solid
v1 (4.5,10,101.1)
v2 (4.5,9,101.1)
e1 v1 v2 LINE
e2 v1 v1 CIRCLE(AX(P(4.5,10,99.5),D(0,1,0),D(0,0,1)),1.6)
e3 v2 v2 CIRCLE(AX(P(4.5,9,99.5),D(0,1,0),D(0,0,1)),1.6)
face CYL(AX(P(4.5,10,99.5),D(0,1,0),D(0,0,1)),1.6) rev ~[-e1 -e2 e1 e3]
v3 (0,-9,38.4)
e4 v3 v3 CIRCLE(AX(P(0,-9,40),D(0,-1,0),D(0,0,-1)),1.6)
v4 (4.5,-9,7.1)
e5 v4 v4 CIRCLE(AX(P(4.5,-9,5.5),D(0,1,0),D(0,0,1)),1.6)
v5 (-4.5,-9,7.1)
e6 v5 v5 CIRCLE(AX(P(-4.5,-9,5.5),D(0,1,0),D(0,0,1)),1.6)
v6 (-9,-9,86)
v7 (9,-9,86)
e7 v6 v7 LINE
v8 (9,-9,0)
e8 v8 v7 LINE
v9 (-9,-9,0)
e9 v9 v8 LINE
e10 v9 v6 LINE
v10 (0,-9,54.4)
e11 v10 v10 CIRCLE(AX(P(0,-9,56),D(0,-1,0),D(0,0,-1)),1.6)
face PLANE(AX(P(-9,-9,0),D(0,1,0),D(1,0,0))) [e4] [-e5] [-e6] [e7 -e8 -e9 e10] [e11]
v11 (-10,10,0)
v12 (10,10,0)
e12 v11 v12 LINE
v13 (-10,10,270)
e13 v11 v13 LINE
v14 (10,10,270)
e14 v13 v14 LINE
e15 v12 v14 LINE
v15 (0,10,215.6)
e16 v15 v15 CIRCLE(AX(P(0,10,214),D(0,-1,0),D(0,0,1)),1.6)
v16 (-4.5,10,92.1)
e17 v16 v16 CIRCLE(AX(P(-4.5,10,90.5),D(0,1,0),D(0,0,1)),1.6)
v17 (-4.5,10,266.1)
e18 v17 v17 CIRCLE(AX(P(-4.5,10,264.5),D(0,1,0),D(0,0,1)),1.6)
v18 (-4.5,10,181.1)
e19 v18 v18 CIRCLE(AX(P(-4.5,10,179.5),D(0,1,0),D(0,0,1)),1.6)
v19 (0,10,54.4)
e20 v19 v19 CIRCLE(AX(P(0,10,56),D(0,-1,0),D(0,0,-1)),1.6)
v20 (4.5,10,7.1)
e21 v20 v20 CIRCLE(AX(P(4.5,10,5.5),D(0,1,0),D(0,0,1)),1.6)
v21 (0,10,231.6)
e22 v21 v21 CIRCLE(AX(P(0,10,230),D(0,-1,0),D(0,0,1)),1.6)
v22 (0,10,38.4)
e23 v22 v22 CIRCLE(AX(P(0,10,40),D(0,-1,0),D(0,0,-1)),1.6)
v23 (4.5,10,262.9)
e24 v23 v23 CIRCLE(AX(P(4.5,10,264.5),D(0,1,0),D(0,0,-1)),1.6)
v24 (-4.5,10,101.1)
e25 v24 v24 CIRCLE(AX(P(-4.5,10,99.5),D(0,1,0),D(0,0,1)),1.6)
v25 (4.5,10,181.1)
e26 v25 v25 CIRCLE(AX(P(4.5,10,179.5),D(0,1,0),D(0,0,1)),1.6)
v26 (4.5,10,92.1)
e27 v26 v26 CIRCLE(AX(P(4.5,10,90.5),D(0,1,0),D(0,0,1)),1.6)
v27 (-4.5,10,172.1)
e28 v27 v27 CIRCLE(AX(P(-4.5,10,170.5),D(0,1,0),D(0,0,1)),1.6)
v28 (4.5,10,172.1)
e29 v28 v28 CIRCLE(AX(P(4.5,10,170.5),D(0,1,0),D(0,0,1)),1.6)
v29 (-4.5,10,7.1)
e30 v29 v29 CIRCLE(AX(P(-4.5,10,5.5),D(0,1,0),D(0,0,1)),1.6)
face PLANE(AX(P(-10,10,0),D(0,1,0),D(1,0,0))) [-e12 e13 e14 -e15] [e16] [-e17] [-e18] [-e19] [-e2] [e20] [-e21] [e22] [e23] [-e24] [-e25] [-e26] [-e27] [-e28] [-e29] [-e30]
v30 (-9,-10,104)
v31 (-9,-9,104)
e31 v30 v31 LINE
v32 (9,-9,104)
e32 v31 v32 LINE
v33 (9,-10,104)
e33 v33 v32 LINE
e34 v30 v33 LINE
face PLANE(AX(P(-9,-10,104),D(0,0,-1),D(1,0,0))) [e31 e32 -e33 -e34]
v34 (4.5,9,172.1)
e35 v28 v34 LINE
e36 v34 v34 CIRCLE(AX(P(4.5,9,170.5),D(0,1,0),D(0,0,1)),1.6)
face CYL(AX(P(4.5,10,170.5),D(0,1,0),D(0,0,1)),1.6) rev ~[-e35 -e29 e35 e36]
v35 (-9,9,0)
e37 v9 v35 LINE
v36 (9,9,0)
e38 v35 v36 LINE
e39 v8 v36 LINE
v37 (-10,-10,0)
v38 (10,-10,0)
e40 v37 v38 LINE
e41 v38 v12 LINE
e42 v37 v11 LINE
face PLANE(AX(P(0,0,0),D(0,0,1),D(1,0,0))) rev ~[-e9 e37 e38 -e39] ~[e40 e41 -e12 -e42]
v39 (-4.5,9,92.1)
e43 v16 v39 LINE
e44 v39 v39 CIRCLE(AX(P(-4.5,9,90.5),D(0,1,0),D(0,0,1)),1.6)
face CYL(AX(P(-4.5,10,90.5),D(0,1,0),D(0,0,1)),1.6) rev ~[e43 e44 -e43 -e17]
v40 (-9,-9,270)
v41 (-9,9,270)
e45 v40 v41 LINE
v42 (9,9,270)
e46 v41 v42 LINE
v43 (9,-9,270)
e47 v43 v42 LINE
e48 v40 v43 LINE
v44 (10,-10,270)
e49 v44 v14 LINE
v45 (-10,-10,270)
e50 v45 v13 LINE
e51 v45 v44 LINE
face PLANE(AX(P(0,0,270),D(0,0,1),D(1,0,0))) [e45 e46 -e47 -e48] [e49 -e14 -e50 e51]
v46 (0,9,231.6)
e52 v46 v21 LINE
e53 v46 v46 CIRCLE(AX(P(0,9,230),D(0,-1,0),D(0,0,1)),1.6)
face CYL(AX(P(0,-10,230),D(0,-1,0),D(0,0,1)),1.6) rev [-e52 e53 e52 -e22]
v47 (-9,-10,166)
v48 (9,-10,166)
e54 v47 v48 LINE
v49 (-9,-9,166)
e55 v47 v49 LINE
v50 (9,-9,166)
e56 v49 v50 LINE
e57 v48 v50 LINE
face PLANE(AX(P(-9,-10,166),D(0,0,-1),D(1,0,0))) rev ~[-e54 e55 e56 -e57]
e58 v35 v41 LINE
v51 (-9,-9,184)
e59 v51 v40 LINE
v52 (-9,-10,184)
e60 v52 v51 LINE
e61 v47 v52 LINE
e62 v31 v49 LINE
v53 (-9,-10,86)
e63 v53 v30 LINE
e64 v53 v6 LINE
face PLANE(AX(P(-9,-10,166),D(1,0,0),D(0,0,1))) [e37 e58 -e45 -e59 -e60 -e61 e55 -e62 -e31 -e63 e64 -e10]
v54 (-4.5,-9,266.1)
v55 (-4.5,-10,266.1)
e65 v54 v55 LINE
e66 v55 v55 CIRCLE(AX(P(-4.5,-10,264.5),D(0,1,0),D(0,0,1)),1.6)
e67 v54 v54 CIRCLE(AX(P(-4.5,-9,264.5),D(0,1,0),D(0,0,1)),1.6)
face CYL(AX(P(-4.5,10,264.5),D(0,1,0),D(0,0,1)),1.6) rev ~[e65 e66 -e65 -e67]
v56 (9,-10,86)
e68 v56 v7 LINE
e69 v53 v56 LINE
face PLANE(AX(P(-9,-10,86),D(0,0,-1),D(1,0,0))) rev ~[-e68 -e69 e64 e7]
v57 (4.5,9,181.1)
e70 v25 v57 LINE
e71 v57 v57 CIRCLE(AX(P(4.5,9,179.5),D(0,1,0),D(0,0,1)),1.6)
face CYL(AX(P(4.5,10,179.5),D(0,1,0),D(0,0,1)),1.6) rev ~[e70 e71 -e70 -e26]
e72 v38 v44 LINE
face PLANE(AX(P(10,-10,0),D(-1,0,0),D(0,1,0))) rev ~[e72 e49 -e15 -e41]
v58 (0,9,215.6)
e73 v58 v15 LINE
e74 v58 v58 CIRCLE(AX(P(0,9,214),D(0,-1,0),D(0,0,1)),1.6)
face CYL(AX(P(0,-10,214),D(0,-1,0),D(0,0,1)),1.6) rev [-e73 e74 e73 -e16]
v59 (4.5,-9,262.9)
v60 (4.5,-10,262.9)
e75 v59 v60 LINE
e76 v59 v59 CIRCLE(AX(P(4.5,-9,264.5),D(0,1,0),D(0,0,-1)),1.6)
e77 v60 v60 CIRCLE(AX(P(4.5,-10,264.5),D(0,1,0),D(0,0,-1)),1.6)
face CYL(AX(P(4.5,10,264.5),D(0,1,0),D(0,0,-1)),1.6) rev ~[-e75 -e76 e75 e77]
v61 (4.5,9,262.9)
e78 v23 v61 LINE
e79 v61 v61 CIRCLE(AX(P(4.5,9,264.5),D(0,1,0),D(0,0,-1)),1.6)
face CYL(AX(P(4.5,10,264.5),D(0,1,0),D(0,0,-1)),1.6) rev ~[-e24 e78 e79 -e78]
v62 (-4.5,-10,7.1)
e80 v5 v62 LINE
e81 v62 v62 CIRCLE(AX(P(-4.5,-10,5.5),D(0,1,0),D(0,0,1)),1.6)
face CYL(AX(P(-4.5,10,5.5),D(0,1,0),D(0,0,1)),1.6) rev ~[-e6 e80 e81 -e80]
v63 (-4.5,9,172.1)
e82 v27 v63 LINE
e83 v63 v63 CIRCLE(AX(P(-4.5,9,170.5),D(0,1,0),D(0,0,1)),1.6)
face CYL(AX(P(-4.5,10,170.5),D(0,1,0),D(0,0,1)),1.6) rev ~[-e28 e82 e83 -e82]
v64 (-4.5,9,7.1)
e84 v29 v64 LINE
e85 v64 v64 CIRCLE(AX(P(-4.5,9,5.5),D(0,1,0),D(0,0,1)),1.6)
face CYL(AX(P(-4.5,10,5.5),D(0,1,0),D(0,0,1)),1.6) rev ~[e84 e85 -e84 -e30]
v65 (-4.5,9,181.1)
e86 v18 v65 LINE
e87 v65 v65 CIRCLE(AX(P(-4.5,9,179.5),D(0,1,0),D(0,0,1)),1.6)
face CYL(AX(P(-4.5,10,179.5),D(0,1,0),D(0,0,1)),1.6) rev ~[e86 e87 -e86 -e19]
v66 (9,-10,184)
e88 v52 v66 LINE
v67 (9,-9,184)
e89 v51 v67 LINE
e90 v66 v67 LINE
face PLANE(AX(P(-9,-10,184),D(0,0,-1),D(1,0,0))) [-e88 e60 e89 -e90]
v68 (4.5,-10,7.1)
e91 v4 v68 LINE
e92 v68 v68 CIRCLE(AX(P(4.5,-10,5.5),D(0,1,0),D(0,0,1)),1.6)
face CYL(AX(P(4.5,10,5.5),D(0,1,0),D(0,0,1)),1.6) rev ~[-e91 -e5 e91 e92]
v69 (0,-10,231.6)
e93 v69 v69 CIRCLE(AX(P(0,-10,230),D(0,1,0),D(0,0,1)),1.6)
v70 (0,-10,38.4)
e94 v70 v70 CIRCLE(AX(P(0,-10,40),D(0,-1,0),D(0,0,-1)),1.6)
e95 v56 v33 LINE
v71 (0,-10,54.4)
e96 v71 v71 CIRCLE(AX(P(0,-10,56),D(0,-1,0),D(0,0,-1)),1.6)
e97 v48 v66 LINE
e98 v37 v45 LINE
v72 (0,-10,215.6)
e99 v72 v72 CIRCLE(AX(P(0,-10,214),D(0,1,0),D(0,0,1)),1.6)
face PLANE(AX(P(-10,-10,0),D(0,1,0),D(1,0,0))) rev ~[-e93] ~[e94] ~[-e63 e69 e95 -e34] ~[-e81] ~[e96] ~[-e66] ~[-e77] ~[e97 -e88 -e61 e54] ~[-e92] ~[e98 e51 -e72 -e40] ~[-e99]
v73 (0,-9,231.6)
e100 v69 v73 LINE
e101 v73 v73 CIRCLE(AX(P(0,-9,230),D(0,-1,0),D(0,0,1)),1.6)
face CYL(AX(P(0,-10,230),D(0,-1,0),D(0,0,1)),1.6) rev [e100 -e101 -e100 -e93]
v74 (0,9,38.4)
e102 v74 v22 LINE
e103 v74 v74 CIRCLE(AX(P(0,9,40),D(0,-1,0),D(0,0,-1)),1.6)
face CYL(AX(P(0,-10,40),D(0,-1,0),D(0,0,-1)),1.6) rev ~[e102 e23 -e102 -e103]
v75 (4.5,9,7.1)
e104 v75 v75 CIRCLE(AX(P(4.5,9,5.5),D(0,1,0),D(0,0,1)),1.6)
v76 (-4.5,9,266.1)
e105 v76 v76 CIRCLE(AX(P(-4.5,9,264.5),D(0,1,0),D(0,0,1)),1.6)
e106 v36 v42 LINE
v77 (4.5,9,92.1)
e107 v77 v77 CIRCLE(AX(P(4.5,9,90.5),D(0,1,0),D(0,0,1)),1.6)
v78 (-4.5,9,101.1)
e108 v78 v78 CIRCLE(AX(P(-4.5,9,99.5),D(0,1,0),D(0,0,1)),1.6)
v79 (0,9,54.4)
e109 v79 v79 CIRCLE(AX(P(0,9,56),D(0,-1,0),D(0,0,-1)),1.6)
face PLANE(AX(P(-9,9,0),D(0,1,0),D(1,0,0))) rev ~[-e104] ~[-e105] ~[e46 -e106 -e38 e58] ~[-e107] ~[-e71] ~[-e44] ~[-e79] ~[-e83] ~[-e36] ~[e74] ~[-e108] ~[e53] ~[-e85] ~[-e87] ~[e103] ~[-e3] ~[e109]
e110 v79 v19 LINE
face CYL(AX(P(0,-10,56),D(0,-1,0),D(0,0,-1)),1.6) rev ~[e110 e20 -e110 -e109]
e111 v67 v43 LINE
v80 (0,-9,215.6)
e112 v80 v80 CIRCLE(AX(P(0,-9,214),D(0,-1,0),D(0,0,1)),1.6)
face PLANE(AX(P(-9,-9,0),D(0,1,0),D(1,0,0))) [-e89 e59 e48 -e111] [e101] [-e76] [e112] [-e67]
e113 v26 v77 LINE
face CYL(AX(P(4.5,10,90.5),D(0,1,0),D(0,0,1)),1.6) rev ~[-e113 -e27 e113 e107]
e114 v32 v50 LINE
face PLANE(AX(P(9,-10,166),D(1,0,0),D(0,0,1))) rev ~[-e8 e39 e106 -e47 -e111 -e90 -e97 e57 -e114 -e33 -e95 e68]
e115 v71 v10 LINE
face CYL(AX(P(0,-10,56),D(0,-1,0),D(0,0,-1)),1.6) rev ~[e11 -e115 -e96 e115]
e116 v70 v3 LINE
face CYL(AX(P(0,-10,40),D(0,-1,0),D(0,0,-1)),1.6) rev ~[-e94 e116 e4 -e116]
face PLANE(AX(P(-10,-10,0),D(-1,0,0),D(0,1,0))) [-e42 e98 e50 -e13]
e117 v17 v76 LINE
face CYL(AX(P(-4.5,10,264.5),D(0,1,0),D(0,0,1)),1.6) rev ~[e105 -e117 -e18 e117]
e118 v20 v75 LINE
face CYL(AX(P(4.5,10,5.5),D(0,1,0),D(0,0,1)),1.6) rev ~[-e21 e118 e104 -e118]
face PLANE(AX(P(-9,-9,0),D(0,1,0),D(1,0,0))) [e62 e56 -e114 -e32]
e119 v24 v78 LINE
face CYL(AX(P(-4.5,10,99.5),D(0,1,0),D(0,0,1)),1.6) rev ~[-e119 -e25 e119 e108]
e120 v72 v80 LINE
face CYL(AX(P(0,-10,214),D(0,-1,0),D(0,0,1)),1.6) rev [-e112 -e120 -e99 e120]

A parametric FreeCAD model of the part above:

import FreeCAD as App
import Part
import Sketcher
from FreeCAD import Vector
Q = App.Units.Quantity

doc = App.newDocument("Part")
body = doc.addObject("PartDesign::Body", "Body")

# Sketch on XY plane
sketch1 = doc.addObject("Sketcher::SketchObject", "Sketch")
body.addObject(sketch1)
sketch1.AttachmentSupport = (doc.XY_Plane, [""])
sketch1.MapMode = "FlatFace"
sketch1.addGeometry([
    Part.LineSegment(Vector(-10, 10, 0), Vector(-10, -10, 0)),  # 0
    Part.LineSegment(Vector(-10, -10, 0), Vector(10, -10, 0)),  # 1
    Part.LineSegment(Vector(10, -10, 0), Vector(10, 10, 0)),  # 2
    Part.LineSegment(Vector(10, 10, 0), Vector(-10, 10, 0)),  # 3
    Part.LineSegment(Vector(9, -9, 0), Vector(-9, -9, 0)),  # 4
    Part.LineSegment(Vector(-9, -9, 0), Vector(-9, 9, 0)),  # 5
    Part.LineSegment(Vector(-9, 9, 0), Vector(9, 9, 0)),  # 6
    Part.LineSegment(Vector(9, 9, 0), Vector(9, -9, 0)),  # 7
], False)
sketch1.addConstraint([
    Sketcher.Constraint("Coincident", 0, 2, 1, 1),
    Sketcher.Constraint("Coincident", 1, 2, 2, 1),
    Sketcher.Constraint("Coincident", 2, 2, 3, 1),
    Sketcher.Constraint("Coincident", 3, 2, 0, 1),
    Sketcher.Constraint("Coincident", 4, 2, 5, 1),
    Sketcher.Constraint("Coincident", 5, 2, 6, 1),
    Sketcher.Constraint("Coincident", 6, 2, 7, 1),
    Sketcher.Constraint("Coincident", 7, 2, 4, 1),
    Sketcher.Constraint("Vertical", 0),
    Sketcher.Constraint("Horizontal", 1),
    Sketcher.Constraint("Vertical", 2),
    Sketcher.Constraint("Horizontal", 3),
    Sketcher.Constraint("Horizontal", 4),
    Sketcher.Constraint("Vertical", 5),
    Sketcher.Constraint("Horizontal", 6),
    Sketcher.Constraint("Vertical", 7),
    Sketcher.Constraint("Symmetric", 0, 2, 2, 2, -1, 1),
    Sketcher.Constraint("Symmetric", 4, 2, 6, 2, -1, 1),
    Sketcher.Constraint("Equal", 3, 0),
    Sketcher.Constraint("Equal", 6, 5),
    Sketcher.Constraint("DistanceX", 1, 1, 1, 2, Q("20 mm")),
    Sketcher.Constraint("DistanceX", 4, 2, 4, 1, Q("18 mm")),
])
pad1 = doc.addObject("PartDesign::Pad", "Pad")
body.addObject(pad1)
pad1.Profile = sketch1
pad1.Length = 270

# Sketch on XZ plane
sketch2 = doc.addObject("Sketcher::SketchObject", "Sketch001")
body.addObject(sketch2)
sketch2.AttachmentSupport = (doc.XZ_Plane, [""])
sketch2.MapMode = "FlatFace"
sketch2.AttachmentOffset = App.Placement(Vector(0, 0, -10), App.Rotation())
sketch2.addGeometry([
    Part.Circle(Vector(-4.5, 179.5, 0), Vector(0, 0, 1), 1.6),  # 0
    Part.Circle(Vector(4.5, 179.5, 0), Vector(0, 0, 1), 1.6),  # 1
    Part.Circle(Vector(4.5, 170.5, 0), Vector(0, 0, 1), 1.6),  # 2
    Part.Circle(Vector(-4.5, 170.5, 0), Vector(0, 0, 1), 1.6),  # 3
    Part.Circle(Vector(-4.5, 99.5, 0), Vector(0, 0, 1), 1.6),  # 4
    Part.Circle(Vector(4.5, 90.5, 0), Vector(0, 0, 1), 1.6),  # 5
    Part.Circle(Vector(4.5, 99.5, 0), Vector(0, 0, 1), 1.6),  # 6
    Part.Circle(Vector(-4.5, 90.5, 0), Vector(0, 0, 1), 1.6),  # 7
], False)
sketch2.addConstraint([
    Sketcher.Constraint("Equal", 0, 1),
    Sketcher.Constraint("Equal", 1, 2),
    Sketcher.Constraint("Equal", 2, 3),
    Sketcher.Constraint("Equal", 3, 4),
    Sketcher.Constraint("Equal", 4, 5),
    Sketcher.Constraint("Equal", 5, 6),
    Sketcher.Constraint("Equal", 6, 7),
    Sketcher.Constraint("Symmetric", 0, 3, 1, 3, -2),
    Sketcher.Constraint("Symmetric", 2, 3, 3, 3, -2),
    Sketcher.Constraint("Symmetric", 4, 3, 6, 3, -2),
    Sketcher.Constraint("Symmetric", 5, 3, 7, 3, -2),
    Sketcher.Constraint("Vertical", 1, 3, 2, 3),
    Sketcher.Constraint("Vertical", 3, 3, 4, 3),
    Sketcher.Constraint("Vertical", 2, 3, 5, 3),
    Sketcher.Constraint("Diameter", 0, Q("3.2 mm")),
    Sketcher.Constraint("DistanceX", 0, 3, 1, 3, Q("9 mm")),
    Sketcher.Constraint("DistanceY", 2, 3, 1, 3, Q("9 mm")),
    Sketcher.Constraint("DistanceY", 4, 3, 3, 3, Q("71 mm")),
    Sketcher.Constraint("DistanceY", 5, 3, 4, 3, Q("9 mm")),
    Sketcher.Constraint("DistanceY", -1, 1, 0, 3, Q("179.5 mm")),
])
pocket1 = doc.addObject("PartDesign::Pocket", "Pocket")
body.addObject(pocket1)
pocket1.Profile = sketch2
pocket1.Type = "ThroughAll"
pocket1.Reversed = True

# Sketch on XZ plane
sketch3 = doc.addObject("Sketcher::SketchObject", "Sketch002")
body.addObject(sketch3)
sketch3.AttachmentSupport = (doc.XZ_Plane, [""])
sketch3.MapMode = "FlatFace"
sketch3.AttachmentOffset = App.Placement(Vector(0, 0, 10), App.Rotation())
sketch3.addGeometry([
    Part.LineSegment(Vector(-9, 184, 0), Vector(-9, 166, 0)),
    Part.LineSegment(Vector(-9, 166, 0), Vector(9, 166, 0)),
    Part.LineSegment(Vector(9, 166, 0), Vector(9, 184, 0)),
    Part.LineSegment(Vector(9, 184, 0), Vector(-9, 184, 0)),
], False)
sketch3.addConstraint([
    Sketcher.Constraint("Coincident", 0, 2, 1, 1),
    Sketcher.Constraint("Coincident", 1, 2, 2, 1),
    Sketcher.Constraint("Coincident", 2, 2, 3, 1),
    Sketcher.Constraint("Coincident", 3, 2, 0, 1),
    Sketcher.Constraint("Vertical", 0),
    Sketcher.Constraint("Horizontal", 1),
    Sketcher.Constraint("Vertical", 2),
    Sketcher.Constraint("Horizontal", 3),
    Sketcher.Constraint("Equal", 3, 0),
    Sketcher.Constraint("DistanceX", 1, 1, 1, 2, Q("18 mm")),
    Sketcher.Constraint("DistanceX", 0, 2, -1, 1, Q("9 mm")),
    Sketcher.Constraint("DistanceY", -1, 1, 0, 2, Q("166 mm")),
])
pocket2 = doc.addObject("PartDesign::Pocket", "Pocket001")
body.addObject(pocket2)
pocket2.Profile = sketch3
pocket2.Type = "UpToFirst"

# Sketch on XZ plane
sketch4 = doc.addObject("Sketcher::SketchObject", "Sketch003")
body.addObject(sketch4)
sketch4.AttachmentSupport = (doc.XZ_Plane, [""])
sketch4.MapMode = "FlatFace"
sketch4.AttachmentOffset = App.Placement(Vector(0, 0, 10), App.Rotation())
sketch4.addGeometry([
    Part.LineSegment(Vector(-9, 104, 0), Vector(-9, 86, 0)),
    Part.LineSegment(Vector(-9, 86, 0), Vector(9, 86, 0)),
    Part.LineSegment(Vector(9, 86, 0), Vector(9, 104, 0)),
    Part.LineSegment(Vector(9, 104, 0), Vector(-9, 104, 0)),
], False)
sketch4.addConstraint([
    Sketcher.Constraint("Coincident", 0, 2, 1, 1),
    Sketcher.Constraint("Coincident", 1, 2, 2, 1),
    Sketcher.Constraint("Coincident", 2, 2, 3, 1),
    Sketcher.Constraint("Coincident", 3, 2, 0, 1),
    Sketcher.Constraint("Vertical", 0),
    Sketcher.Constraint("Horizontal", 1),
    Sketcher.Constraint("Vertical", 2),
    Sketcher.Constraint("Horizontal", 3),
    Sketcher.Constraint("Equal", 3, 0),
    Sketcher.Constraint("DistanceX", 1, 1, 1, 2, Q("18 mm")),
    Sketcher.Constraint("DistanceX", 0, 2, -1, 1, Q("9 mm")),
    Sketcher.Constraint("DistanceY", -1, 1, 0, 2, Q("86 mm")),
])
pocket3 = doc.addObject("PartDesign::Pocket", "Pocket002")
body.addObject(pocket3)
pocket3.Profile = sketch4
pocket3.Type = "UpToFirst"

# Sketch on XZ plane
sketch5 = doc.addObject("Sketcher::SketchObject", "Sketch004")
body.addObject(sketch5)
sketch5.AttachmentSupport = (doc.XZ_Plane, [""])
sketch5.MapMode = "FlatFace"
sketch5.AttachmentOffset = App.Placement(Vector(0, 0, -10), App.Rotation())
sketch5.addGeometry([
    Part.Circle(Vector(-4.5, 5.5, 0), Vector(0, 0, 1), 1.6),
    Part.Circle(Vector(4.5, 5.5, 0), Vector(0, 0, 1), 1.6),
    Part.Circle(Vector(-4.5, 264.5, 0), Vector(0, 0, 1), 1.6),
    Part.Circle(Vector(4.5, 264.5, 0), Vector(0, 0, 1), 1.6),
], False)
sketch5.addConstraint([
    Sketcher.Constraint("Equal", 0, 1),
    Sketcher.Constraint("Equal", 1, 2),
    Sketcher.Constraint("Equal", 2, 3),
    Sketcher.Constraint("Symmetric", 0, 3, 1, 3, -2),
    Sketcher.Constraint("Symmetric", 2, 3, 3, 3, -2),
    Sketcher.Constraint("Vertical", 0, 3, 2, 3),
    Sketcher.Constraint("Diameter", 0, Q("3.2 mm")),
    Sketcher.Constraint("DistanceX", 0, 3, 1, 3, Q("9 mm")),
    Sketcher.Constraint("DistanceY", 0, 3, 2, 3, Q("259 mm")),
    Sketcher.Constraint("DistanceY", -1, 1, 0, 3, Q("5.5 mm")),
])
pocket4 = doc.addObject("PartDesign::Pocket", "Pocket003")
body.addObject(pocket4)
pocket4.Profile = sketch5
pocket4.Type = "ThroughAll"
pocket4.Reversed = True

# Sketch on XZ plane
sketch6 = doc.addObject("Sketcher::SketchObject", "Sketch005")
body.addObject(sketch6)
sketch6.AttachmentSupport = (doc.XZ_Plane, [""])
sketch6.MapMode = "FlatFace"
sketch6.AttachmentOffset = App.Placement(Vector(0, 0, 10), App.Rotation())
sketch6.addGeometry([
    Part.Circle(Vector(0, 56, 0), Vector(0, 0, 1), 1.6),
    Part.Circle(Vector(0, 40, 0), Vector(0, 0, 1), 1.6),
], False)
sketch6.addConstraint([
    Sketcher.Constraint("Equal", 0, 1),
    Sketcher.Constraint("PointOnObject", 0, 3, -2),
    Sketcher.Constraint("PointOnObject", 1, 3, -2),
    Sketcher.Constraint("Diameter", 0, Q("3.2 mm")),
    Sketcher.Constraint("DistanceY", -1, 1, 0, 3, Q("56 mm")),
    Sketcher.Constraint("DistanceY", -1, 1, 1, 3, Q("40 mm")),
])
pocket5 = doc.addObject("PartDesign::Pocket", "Pocket004")
body.addObject(pocket5)
pocket5.Profile = sketch6
pocket5.Type = "ThroughAll"
doc.recompute()

datumplane = doc.addObject("PartDesign::Plane", "DatumPlane")
body.addObject(datumplane)
datumplane.AttachmentSupport = (doc.XY_Plane, [""])
datumplane.MapMode = "FlatFace"
datumplane.AttachmentOffset = App.Placement(Vector(0, 0, 135), App.Rotation())
mirrored = doc.addObject("PartDesign::Mirrored", "Mirrored")
body.addObject(mirrored)
mirrored.Originals = [pocket5]
mirrored.MirrorPlane = (datumplane, [""])
body.Tip = mirrored

doc.recompute()
